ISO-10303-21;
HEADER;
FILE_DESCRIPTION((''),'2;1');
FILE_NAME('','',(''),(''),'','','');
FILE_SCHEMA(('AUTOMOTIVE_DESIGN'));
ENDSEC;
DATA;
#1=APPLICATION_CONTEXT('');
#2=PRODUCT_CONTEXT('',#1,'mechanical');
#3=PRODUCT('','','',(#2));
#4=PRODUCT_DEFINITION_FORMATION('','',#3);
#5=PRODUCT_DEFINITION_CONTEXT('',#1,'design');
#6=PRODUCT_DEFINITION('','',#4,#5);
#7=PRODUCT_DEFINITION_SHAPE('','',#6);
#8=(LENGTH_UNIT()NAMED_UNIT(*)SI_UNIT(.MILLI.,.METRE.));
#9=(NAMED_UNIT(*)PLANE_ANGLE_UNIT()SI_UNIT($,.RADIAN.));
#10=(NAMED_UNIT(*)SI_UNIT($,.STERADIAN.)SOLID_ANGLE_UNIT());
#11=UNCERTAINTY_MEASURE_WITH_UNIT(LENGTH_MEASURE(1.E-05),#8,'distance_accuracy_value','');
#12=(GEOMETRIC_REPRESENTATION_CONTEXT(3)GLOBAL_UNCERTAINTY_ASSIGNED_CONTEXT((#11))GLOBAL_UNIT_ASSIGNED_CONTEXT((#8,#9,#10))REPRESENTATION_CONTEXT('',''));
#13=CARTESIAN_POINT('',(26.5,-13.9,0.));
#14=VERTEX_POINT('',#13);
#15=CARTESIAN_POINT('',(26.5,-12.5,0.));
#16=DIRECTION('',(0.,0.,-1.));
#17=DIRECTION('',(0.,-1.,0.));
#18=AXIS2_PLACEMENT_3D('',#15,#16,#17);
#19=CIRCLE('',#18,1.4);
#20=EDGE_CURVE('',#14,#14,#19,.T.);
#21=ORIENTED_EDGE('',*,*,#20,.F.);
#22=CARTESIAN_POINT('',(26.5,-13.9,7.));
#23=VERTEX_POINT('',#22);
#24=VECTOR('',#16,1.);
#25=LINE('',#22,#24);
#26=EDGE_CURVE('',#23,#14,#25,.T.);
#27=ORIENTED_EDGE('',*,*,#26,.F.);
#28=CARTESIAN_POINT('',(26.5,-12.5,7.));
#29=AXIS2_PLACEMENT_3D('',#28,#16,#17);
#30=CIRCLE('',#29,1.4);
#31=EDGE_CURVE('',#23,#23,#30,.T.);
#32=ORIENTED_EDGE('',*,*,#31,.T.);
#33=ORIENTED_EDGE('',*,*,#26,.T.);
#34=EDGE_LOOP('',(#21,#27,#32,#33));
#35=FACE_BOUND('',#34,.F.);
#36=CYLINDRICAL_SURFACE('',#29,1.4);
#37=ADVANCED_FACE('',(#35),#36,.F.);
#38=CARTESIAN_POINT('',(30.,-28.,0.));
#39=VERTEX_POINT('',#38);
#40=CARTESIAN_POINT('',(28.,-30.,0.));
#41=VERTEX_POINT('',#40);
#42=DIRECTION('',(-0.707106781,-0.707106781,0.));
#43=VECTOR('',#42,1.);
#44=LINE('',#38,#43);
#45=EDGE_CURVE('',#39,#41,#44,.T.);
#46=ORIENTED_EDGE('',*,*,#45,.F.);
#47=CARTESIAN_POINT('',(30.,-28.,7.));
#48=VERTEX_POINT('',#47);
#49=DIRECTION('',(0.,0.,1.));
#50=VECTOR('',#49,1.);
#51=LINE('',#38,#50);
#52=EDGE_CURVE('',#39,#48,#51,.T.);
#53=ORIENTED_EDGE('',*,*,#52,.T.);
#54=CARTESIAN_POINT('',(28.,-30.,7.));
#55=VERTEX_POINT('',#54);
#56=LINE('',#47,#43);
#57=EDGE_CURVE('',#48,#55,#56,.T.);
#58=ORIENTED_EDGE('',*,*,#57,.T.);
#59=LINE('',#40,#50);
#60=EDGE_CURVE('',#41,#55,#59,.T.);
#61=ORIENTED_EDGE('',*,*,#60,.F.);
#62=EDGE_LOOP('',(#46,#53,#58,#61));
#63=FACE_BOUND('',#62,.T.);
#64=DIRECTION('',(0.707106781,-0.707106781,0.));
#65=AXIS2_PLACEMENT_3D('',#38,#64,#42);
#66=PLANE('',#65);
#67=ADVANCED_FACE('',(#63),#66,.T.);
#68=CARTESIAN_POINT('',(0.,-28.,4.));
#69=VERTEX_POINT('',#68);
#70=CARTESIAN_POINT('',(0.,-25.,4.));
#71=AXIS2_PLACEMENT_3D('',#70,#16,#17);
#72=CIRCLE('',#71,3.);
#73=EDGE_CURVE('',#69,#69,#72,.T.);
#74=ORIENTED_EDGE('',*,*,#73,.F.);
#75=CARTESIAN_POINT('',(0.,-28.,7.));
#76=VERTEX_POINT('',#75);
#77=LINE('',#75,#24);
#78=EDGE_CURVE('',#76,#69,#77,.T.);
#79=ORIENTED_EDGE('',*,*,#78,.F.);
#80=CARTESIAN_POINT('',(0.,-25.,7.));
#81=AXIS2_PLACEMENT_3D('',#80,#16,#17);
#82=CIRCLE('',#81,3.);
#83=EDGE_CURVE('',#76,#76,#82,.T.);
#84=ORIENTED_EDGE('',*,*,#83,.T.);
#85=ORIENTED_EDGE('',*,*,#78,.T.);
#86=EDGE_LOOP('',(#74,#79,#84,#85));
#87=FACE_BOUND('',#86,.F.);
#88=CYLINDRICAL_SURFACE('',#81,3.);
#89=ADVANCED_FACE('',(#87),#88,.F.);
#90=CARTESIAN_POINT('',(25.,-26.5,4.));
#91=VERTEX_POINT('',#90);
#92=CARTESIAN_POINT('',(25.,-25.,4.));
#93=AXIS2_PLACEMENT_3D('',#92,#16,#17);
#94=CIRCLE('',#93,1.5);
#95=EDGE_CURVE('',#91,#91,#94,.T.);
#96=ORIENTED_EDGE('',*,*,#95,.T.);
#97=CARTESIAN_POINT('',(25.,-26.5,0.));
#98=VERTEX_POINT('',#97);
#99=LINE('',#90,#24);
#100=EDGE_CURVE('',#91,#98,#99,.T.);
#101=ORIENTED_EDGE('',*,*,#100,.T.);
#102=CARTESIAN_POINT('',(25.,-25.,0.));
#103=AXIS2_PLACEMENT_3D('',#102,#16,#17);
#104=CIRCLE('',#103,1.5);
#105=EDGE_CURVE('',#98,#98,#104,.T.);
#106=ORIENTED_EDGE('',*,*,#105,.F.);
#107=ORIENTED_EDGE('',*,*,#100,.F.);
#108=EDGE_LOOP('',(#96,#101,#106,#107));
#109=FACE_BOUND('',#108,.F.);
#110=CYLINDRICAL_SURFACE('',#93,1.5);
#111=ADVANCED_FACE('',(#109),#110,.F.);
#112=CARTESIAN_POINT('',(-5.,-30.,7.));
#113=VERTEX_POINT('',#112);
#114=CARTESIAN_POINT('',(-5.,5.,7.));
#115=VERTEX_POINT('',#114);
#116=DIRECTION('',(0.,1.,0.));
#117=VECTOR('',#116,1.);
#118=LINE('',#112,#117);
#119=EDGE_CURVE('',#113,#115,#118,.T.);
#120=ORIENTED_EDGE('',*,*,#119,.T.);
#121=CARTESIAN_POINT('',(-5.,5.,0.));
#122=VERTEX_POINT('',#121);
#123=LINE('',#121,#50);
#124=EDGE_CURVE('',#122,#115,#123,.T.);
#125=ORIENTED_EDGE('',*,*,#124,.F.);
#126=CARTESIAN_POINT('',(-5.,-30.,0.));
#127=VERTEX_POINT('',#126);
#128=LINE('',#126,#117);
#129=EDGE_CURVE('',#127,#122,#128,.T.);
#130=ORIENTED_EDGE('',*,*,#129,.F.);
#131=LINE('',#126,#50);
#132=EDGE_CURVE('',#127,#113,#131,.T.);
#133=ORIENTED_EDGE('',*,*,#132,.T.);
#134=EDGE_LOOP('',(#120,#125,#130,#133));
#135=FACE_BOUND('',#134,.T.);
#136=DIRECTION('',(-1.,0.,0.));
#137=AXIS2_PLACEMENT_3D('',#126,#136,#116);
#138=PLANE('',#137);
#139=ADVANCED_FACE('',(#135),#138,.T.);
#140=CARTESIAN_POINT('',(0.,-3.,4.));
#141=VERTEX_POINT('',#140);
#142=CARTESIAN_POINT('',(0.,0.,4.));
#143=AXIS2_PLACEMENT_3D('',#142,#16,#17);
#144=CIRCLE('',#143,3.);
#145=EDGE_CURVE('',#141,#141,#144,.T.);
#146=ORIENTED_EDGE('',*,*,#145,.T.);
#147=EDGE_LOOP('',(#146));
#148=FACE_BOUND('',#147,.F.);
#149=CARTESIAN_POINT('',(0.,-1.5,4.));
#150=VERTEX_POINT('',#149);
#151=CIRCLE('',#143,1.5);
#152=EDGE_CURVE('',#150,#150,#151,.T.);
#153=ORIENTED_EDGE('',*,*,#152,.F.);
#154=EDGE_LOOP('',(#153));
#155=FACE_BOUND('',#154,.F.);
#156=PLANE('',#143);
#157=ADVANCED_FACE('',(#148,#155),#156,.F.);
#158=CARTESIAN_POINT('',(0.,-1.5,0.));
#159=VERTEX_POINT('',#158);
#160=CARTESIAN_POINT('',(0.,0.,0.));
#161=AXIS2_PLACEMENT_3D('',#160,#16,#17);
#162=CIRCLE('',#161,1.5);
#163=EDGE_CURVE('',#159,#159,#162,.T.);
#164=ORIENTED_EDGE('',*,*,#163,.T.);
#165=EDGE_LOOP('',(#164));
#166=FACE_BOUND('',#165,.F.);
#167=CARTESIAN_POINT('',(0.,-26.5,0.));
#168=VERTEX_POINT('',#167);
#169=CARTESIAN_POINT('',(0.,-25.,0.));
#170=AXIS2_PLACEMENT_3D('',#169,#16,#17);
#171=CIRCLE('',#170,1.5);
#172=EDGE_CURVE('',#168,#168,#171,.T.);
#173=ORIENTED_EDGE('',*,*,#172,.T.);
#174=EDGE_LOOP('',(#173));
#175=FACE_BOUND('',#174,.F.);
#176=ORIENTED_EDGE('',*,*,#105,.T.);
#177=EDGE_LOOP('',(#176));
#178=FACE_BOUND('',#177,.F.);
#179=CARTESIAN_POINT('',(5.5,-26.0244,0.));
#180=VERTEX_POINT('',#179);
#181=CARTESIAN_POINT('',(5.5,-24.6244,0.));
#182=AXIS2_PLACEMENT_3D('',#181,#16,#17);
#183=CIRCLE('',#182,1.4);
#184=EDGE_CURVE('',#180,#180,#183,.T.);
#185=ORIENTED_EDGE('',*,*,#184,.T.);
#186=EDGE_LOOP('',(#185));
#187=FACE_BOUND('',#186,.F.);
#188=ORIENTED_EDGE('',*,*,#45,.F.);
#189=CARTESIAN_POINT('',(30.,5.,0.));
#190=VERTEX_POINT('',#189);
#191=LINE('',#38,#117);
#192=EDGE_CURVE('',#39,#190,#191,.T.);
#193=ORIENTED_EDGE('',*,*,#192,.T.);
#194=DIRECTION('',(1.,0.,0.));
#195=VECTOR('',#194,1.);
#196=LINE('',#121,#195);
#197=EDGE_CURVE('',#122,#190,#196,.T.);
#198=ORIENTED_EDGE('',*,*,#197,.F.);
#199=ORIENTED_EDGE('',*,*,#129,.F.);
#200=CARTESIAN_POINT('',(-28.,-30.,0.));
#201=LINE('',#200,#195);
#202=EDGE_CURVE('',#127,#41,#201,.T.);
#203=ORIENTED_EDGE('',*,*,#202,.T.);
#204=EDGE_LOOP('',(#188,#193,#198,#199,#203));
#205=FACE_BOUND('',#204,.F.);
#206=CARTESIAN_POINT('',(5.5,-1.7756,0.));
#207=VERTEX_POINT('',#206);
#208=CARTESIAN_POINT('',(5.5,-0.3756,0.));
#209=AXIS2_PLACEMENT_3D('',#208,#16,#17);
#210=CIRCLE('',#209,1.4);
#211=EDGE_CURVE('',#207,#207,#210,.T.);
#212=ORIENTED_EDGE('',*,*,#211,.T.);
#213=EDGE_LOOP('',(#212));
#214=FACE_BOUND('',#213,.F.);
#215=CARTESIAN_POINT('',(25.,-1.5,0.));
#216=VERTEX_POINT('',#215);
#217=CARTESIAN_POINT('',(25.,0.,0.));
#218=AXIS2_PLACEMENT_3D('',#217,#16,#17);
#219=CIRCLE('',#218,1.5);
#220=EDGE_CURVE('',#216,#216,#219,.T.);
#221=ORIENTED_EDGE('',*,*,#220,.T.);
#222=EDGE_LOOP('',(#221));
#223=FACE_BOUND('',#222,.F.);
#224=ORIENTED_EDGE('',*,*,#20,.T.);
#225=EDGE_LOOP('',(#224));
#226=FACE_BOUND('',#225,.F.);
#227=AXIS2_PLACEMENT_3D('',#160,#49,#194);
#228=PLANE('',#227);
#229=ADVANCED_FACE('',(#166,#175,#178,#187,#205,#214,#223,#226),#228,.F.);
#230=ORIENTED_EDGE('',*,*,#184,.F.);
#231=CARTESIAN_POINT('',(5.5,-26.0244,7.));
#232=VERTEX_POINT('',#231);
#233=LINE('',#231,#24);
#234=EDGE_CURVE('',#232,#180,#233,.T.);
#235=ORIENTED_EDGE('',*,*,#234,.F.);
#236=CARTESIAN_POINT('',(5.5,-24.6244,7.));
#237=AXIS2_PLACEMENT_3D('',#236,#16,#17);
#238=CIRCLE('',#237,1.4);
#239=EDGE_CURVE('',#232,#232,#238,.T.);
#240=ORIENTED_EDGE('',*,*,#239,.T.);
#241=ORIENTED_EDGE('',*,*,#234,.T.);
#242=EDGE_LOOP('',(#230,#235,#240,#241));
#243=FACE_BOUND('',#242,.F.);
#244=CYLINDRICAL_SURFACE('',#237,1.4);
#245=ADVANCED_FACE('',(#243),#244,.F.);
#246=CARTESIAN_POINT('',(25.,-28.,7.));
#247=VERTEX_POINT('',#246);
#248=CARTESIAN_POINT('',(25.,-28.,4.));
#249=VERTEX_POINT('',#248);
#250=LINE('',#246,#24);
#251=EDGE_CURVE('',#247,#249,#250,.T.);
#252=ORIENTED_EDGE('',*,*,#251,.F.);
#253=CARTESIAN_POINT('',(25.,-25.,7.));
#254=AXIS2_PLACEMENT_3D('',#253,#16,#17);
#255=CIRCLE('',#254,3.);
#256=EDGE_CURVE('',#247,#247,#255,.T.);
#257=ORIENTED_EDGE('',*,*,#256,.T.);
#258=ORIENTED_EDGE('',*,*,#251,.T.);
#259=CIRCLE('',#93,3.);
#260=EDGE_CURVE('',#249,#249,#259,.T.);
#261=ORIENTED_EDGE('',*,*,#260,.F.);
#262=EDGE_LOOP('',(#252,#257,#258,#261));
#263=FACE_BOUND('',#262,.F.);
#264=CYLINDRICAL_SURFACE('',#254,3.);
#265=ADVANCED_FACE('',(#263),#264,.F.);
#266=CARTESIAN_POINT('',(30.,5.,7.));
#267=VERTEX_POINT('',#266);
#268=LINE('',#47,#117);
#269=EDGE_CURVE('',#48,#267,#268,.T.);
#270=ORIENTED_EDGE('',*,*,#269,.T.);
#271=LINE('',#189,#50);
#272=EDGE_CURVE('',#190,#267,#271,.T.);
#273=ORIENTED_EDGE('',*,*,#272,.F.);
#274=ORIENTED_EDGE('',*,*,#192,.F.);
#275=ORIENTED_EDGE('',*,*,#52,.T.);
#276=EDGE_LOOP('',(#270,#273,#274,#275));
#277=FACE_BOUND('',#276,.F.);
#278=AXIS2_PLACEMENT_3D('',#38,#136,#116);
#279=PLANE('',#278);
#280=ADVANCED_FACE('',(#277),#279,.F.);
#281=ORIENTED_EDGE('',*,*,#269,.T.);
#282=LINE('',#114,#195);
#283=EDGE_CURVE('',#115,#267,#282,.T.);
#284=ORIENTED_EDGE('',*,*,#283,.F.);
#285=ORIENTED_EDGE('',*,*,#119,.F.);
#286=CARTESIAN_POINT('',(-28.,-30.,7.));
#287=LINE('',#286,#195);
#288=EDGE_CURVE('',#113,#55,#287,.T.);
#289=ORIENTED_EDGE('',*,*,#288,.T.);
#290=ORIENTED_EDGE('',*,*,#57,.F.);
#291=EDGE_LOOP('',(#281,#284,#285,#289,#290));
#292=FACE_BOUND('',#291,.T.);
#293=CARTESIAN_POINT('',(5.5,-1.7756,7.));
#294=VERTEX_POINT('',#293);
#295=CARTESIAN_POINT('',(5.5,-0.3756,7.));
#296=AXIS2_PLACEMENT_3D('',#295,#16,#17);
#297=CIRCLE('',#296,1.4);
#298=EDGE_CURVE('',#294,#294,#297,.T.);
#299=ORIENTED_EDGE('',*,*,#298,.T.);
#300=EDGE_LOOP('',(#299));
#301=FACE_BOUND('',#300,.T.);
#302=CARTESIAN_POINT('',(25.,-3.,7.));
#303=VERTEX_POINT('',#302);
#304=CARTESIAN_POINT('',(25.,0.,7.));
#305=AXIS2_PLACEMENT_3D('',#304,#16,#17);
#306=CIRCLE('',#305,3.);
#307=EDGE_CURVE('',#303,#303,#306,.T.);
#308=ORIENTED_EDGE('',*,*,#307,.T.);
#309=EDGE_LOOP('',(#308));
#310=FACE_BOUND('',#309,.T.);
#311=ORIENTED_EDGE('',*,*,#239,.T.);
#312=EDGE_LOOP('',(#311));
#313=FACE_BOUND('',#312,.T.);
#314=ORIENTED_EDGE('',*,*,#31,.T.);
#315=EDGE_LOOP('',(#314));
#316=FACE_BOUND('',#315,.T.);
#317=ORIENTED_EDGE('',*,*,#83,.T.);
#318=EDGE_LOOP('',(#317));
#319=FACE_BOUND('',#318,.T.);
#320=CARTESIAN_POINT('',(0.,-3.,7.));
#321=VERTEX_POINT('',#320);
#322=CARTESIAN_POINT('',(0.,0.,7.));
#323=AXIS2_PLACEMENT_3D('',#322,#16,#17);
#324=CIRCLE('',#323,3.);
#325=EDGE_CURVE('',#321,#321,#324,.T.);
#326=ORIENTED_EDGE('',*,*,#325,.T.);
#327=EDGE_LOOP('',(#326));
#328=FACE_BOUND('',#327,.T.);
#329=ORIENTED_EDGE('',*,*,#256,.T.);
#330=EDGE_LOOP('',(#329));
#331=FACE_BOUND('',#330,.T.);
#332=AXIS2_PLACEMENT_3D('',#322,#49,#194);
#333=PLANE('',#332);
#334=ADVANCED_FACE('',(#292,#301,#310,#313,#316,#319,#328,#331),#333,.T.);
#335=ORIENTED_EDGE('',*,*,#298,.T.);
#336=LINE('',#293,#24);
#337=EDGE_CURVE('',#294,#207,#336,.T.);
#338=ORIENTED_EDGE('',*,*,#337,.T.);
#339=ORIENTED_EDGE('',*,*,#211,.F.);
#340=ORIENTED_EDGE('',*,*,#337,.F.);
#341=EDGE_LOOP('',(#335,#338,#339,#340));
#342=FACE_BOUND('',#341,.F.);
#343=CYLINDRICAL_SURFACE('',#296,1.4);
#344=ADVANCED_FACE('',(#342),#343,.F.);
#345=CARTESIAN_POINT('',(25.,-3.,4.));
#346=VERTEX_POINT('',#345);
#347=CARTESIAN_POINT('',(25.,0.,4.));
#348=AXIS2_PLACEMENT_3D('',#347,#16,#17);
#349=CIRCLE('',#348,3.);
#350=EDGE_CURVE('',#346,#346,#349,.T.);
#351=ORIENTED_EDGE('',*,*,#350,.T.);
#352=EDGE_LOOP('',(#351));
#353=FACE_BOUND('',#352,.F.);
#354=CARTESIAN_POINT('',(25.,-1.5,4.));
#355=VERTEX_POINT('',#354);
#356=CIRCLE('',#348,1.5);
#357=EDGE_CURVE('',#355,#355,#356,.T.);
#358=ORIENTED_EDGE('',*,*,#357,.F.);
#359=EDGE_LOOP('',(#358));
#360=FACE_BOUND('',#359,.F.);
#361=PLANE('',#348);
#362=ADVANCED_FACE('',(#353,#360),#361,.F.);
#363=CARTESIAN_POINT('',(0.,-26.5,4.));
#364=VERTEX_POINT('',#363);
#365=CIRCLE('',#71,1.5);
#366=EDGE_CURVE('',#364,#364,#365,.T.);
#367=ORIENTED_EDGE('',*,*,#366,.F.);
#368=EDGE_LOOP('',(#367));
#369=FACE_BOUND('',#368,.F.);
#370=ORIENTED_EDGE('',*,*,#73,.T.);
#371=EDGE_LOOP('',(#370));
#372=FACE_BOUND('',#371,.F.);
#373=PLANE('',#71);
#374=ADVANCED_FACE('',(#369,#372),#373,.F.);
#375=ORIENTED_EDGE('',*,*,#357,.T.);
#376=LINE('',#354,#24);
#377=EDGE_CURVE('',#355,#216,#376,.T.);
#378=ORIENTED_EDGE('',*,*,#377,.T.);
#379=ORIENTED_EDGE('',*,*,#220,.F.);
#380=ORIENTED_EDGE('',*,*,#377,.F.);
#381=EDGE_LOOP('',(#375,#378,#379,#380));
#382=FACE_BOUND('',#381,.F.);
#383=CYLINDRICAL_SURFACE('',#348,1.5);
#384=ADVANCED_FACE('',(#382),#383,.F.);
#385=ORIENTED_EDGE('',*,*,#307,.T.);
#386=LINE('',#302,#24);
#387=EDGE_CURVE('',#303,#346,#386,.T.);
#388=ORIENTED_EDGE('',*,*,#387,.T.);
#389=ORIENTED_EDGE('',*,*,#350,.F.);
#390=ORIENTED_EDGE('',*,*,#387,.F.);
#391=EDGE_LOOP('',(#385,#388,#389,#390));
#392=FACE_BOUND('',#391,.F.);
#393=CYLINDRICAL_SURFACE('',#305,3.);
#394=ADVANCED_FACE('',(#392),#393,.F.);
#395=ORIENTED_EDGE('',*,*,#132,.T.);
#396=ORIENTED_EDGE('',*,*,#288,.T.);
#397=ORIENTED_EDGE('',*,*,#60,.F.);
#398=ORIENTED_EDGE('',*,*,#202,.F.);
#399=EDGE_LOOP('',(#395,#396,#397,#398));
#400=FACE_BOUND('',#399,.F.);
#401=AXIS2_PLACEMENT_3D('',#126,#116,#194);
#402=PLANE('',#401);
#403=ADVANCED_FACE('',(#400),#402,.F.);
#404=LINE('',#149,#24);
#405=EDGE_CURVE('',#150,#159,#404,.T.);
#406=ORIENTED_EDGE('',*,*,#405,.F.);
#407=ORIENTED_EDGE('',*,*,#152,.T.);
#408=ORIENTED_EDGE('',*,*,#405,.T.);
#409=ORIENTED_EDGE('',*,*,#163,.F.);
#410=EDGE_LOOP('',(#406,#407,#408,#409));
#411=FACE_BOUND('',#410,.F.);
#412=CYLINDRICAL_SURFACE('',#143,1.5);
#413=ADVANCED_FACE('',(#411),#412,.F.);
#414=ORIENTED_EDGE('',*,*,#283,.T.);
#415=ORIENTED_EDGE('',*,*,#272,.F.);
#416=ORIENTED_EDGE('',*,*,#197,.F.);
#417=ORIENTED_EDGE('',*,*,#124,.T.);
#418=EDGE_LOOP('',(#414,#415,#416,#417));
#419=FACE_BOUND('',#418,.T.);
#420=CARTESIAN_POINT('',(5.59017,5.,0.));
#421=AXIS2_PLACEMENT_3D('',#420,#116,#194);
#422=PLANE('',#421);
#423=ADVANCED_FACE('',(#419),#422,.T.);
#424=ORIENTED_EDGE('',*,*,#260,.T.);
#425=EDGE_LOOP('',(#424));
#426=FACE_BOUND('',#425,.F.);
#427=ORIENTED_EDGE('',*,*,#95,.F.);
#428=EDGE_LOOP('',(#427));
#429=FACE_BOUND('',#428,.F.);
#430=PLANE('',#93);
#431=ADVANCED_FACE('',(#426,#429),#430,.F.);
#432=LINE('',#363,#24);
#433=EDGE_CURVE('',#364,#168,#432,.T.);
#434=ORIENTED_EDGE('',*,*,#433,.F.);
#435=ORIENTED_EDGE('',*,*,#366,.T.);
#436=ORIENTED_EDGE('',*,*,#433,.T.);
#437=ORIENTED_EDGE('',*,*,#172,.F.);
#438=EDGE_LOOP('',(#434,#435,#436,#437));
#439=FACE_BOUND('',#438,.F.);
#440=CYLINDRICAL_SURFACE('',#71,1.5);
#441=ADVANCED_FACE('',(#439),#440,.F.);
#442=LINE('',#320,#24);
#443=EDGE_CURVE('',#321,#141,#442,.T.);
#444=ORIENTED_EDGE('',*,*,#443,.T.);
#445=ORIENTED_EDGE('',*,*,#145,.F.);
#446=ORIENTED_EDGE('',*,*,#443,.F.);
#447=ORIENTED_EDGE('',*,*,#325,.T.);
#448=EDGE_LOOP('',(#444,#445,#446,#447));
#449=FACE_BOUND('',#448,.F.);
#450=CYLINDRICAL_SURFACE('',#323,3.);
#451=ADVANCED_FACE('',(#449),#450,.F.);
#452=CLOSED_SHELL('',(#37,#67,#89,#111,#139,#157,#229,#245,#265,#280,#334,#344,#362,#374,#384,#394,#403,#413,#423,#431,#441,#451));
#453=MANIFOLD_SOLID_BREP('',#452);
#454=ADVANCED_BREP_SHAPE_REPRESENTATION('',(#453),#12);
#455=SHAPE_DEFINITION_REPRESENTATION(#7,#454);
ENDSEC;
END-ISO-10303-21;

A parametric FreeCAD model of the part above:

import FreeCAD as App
import Part
import Sketcher

V = App.Vector
Q = App.Units.Quantity


def add_polygon(sketch, points):
    """Adds a closed chain of lines whose ends are joined by coincident constraints."""
    first, n = sketch.GeometryCount, len(points)
    for a, b in zip(points, points[1:] + points[:1]):
        sketch.addGeometry(Part.LineSegment(App.Vector(*a, 0), App.Vector(*b, 0)), False)
    for i in range(n):
        sketch.addConstraint(Sketcher.Constraint("Coincident", first + i, 2, first + (i + 1) % n, 1))

doc = App.newDocument("Part")
body = doc.addObject("PartDesign::Body", "Body")

# Sketch on XY plane
sketch1 = doc.addObject("Sketcher::SketchObject", "Sketch")
body.addObject(sketch1)
sketch1.AttachmentSupport = (doc.XY_Plane, [""])
sketch1.MapMode = "FlatFace"
add_polygon(sketch1, [(30, -28), (30, 5), (-5, 5), (-5, -30), (28, -30)])  # lines 0-4
sketch1.addConstraint(Sketcher.Constraint("Vertical", 0))
sketch1.addConstraint(Sketcher.Constraint("Horizontal", 1))
sketch1.addConstraint(Sketcher.Constraint("Vertical", 2))
sketch1.addConstraint(Sketcher.Constraint("Horizontal", 3))
sketch1.addConstraint(Sketcher.Constraint("Equal", 3, 0))
sketch1.addConstraint(Sketcher.Constraint("Equal", 1, 2))
sketch1.addConstraint(Sketcher.Constraint("DistanceX", 1, 2, 1, 1, Q("35 mm")))
sketch1.addConstraint(Sketcher.Constraint("DistanceX", 3, 1, 3, 2, Q("33 mm")))
sketch1.addConstraint(Sketcher.Constraint("DistanceX", -1, 1, 0, 2, Q("30 mm")))
sketch1.addConstraint(Sketcher.Constraint("DistanceY", -1, 1, 0, 2, Q("5 mm")))
pad1 = doc.addObject("PartDesign::Pad", "Pad")
body.addObject(pad1)
pad1.Profile = sketch1
pad1.Length = 7

# Sketch on XY plane
sketch2 = doc.addObject("Sketcher::SketchObject", "Sketch001")
body.addObject(sketch2)
sketch2.AttachmentSupport = (doc.XY_Plane, [""])
sketch2.MapMode = "FlatFace"
sketch2.AttachmentOffset = App.Placement(V(0, 0, 7), App.Rotation())
sketch2.addGeometry(Part.Circle(V(25, 0, 0), V(0, 0, 1), 1.5), False)
sketch2.addGeometry(Part.Circle(V(0, -25, 0), V(0, 0, 1), 1.5), False)
sketch2.addGeometry(Part.Circle(V(0, 0, 0), V(0, 0, 1), 1.5), False)
sketch2.addGeometry(Part.Circle(V(25, -25, 0), V(0, 0, 1), 1.5), False)
sketch2.addConstraint(Sketcher.Constraint("Coincident", 2, 3, -1, 1))
sketch2.addConstraint(Sketcher.Constraint("Equal", 0, 1))
sketch2.addConstraint(Sketcher.Constraint("Equal", 1, 2))
sketch2.addConstraint(Sketcher.Constraint("Equal", 2, 3))
sketch2.addConstraint(Sketcher.Constraint("PointOnObject", 0, 3, -1))
sketch2.addConstraint(Sketcher.Constraint("PointOnObject", 1, 3, -2))
sketch2.addConstraint(Sketcher.Constraint("Horizontal", 1, 3, 3, 3))
sketch2.addConstraint(Sketcher.Constraint("Vertical", 0, 3, 3, 3))
sketch2.addConstraint(Sketcher.Constraint("Diameter", 0, Q("3 mm")))
sketch2.addConstraint(Sketcher.Constraint("DistanceX", -1, 1, 0, 3, Q("25 mm")))
sketch2.addConstraint(Sketcher.Constraint("DistanceY", 1, 3, -1, 1, Q("25 mm")))
doc.recompute()
hole = doc.addObject("PartDesign::Hole", "Hole")
body.addObject(hole)
hole.Profile = sketch2
hole.ThreadType = "None"
hole.Diameter = 3
hole.DepthType = "ThroughAll"
hole.HoleCutType = "Counterbore"
hole.HoleCutDiameter = 6
hole.HoleCutDepth = 3

# Sketch on XY plane
sketch3 = doc.addObject("Sketcher::SketchObject", "Sketch002")
body.addObject(sketch3)
sketch3.AttachmentSupport = (doc.XY_Plane, [""])
sketch3.MapMode = "FlatFace"
sketch3.AttachmentOffset = App.Placement(V(0, 0, 7), App.Rotation())
sketch3.addGeometry(Part.Circle(V(26.5, -12.5, 0), V(0, 0, 1), 1.4), False)
sketch3.addGeometry(Part.Circle(V(5.5, -24.6, 0), V(0, 0, 1), 1.4), False)
sketch3.addGeometry(Part.Circle(V(5.5, -0.4, 0), V(0, 0, 1), 1.4), False)
sketch3.addConstraint(Sketcher.Constraint("Equal", 0, 1))
sketch3.addConstraint(Sketcher.Constraint("Equal", 1, 2))
sketch3.addConstraint(Sketcher.Constraint("Vertical", 1, 3, 2, 3))
sketch3.addConstraint(Sketcher.Constraint("Diameter", 0, Q("2.8 mm")))
sketch3.addConstraint(Sketcher.Constraint("DistanceX", 1, 3, 0, 3, Q("21 mm")))
sketch3.addConstraint(Sketcher.Constraint("DistanceX", -1, 1, 0, 3, Q("26.5 mm")))
sketch3.addConstraint(Sketcher.Constraint("DistanceY", 0, 3, -1, 1, Q("12.5 mm")))
sketch3.addConstraint(Sketcher.Constraint("DistanceY", 1, 3, -1, 1, Q("24.6244 mm")))
sketch3.addConstraint(Sketcher.Constraint("DistanceY", 2, 3, -1, 1, Q("0.3756 mm")))
doc.recompute()
hole2 = doc.addObject("PartDesign::Hole", "Hole001")
body.addObject(hole2)
hole2.Profile = sketch3
hole2.ThreadType = "None"
hole2.Diameter = 2.8
hole2.DepthType = "ThroughAll"

doc.recompute()
